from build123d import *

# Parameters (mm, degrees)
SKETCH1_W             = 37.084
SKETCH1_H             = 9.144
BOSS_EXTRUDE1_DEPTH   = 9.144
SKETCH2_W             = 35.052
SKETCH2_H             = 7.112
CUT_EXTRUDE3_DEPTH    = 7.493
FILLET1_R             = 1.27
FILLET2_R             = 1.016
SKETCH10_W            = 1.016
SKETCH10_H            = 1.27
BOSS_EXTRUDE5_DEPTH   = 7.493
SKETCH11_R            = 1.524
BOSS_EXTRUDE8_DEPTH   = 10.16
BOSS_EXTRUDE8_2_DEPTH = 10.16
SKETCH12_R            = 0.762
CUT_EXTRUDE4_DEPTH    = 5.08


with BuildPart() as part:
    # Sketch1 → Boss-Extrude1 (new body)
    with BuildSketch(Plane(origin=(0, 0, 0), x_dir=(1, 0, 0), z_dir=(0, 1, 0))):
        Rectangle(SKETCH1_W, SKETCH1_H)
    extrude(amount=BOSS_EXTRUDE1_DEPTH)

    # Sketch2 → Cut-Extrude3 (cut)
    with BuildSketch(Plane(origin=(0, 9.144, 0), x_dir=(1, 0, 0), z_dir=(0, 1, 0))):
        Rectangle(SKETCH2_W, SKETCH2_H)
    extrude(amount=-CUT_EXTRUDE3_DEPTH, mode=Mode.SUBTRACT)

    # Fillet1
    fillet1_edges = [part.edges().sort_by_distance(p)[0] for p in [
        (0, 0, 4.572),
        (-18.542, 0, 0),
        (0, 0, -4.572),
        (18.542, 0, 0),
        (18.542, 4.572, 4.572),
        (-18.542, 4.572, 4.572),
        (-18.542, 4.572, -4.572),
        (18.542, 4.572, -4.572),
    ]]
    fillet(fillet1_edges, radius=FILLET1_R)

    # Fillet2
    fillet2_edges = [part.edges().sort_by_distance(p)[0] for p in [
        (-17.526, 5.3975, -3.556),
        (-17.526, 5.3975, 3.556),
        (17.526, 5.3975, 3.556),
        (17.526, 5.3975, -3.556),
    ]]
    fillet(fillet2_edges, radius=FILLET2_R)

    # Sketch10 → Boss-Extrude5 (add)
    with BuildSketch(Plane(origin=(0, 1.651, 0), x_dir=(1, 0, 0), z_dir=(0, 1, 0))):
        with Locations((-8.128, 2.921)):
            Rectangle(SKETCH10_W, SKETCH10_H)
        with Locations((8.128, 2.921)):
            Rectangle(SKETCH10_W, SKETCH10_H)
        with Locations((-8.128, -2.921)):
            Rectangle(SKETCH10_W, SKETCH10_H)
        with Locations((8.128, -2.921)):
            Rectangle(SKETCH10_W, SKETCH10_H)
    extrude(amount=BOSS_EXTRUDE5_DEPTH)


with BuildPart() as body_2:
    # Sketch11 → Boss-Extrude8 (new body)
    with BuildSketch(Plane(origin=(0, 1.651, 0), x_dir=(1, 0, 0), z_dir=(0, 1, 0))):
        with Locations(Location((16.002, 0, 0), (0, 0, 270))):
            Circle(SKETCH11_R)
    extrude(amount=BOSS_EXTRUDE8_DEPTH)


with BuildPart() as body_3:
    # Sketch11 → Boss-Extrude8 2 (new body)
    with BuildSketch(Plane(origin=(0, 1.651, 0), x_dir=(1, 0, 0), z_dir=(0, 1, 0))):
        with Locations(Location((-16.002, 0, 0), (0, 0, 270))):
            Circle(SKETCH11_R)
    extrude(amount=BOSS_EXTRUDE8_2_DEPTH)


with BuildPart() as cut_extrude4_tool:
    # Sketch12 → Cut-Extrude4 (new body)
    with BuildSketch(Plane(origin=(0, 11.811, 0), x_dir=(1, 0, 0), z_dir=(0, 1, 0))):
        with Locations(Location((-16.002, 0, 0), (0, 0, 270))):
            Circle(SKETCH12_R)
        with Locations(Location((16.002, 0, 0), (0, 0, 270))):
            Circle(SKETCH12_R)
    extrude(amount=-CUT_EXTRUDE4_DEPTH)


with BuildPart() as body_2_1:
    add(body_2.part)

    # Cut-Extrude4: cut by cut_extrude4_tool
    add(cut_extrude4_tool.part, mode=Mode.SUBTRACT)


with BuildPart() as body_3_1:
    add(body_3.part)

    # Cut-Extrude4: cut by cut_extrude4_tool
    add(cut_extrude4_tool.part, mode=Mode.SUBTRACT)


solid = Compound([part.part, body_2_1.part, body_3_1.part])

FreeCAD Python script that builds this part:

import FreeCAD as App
import Part
import Sketcher
from FreeCAD import Vector
Q = App.Units.Quantity


def edges_at(feature, points):
    """Names of the edges that pass closest to the given points."""
    edges = feature.Shape.Edges
    near = lambda p: min(range(len(edges)), key=lambda i: edges[i].distToShape(Part.Vertex(*p))[0])
    return sorted({f"Edge{near(p) + 1}" for p in points})

doc = App.newDocument("Part")
params = doc.addObject("Spreadsheet::Sheet", "Params")
for row, (alias, value) in enumerate([
    ("sketch1_width", "1.46 in"),
    ("sketch1_height", "0.36 in"),
    ("pad1_length", "0.36 in"),
    ("sketch2_width", "1.38 in"),
    ("sketch2_height", "0.28 in"),
    ("pocket1_length", "0.295 in"),
    ("fillet_radius", "0.05 in"),
    ("fillet2_radius", "0.04 in"),
    ("sketch3_width", "0.04 in"),
    ("sketch3_height", "0.05 in"),
    ("pad2_length", "0.295 in"),
    ("sketch4_diameter", "0.12 in"),
    ("pad3_length", "0.4 in"),
    ("sketch5_diameter", "0.12 in"),
    ("pad4_length", "0.4 in"),
    ("sketch6_diameter", "0.06 in"),
    ("pad5_length", "0.2 in"),
], start=1):
    params.set(f"A{row}", alias)
    params.set(f"B{row}", "=" + value)
    params.setAlias(f"B{row}", alias)

body = doc.addObject("PartDesign::Body", "Body")

sketch1 = body.newObject("Sketcher::SketchObject", "Sketch")
sketch1.AttachmentSupport = (doc.getObject("XZ_Plane"), [""])
sketch1.MapMode = "FlatFace"
sketch1.addGeometry(Part.LineSegment(Vector(-19, -5, 0), Vector(-19, 5, 0)), False)
sketch1.addGeometry(Part.LineSegment(Vector(-19, 5, 0), Vector(19, 5, 0)), False)
sketch1.addGeometry(Part.LineSegment(Vector(19, 5, 0), Vector(19, -5, 0)), False)
sketch1.addGeometry(Part.LineSegment(Vector(19, -5, 0), Vector(-19, -5, 0)), False)
sketch1.addConstraint(Sketcher.Constraint("Coincident", 0, 2, 1, 1))
sketch1.addConstraint(Sketcher.Constraint("Coincident", 1, 2, 2, 1))
sketch1.addConstraint(Sketcher.Constraint("Coincident", 2, 2, 3, 1))
sketch1.addConstraint(Sketcher.Constraint("Coincident", 3, 2, 0, 1))
sketch1.addConstraint(Sketcher.Constraint("Vertical", 0))
sketch1.addConstraint(Sketcher.Constraint("Horizontal", 1))
sketch1.addConstraint(Sketcher.Constraint("Vertical", 2))
sketch1.addConstraint(Sketcher.Constraint("Horizontal", 3))
sketch1.addConstraint(Sketcher.Constraint("Symmetric", 0, 2, 2, 2, -1, 1))
sketch1.addConstraint(Sketcher.Constraint("DistanceX", 1, 1, 1, 2, Q("1.46 in")))
sketch1.addConstraint(Sketcher.Constraint("DistanceY", 0, 1, 0, 2, Q("0.36 in")))
sketch1.setExpression("Constraints[9]", "Params.sketch1_width")
sketch1.setExpression("Constraints[10]", "Params.sketch1_height")
pad1 = body.newObject("PartDesign::Pad", "Pad")
pad1.Profile = sketch1
pad1.setExpression("Length", "Params.pad1_length")
pad1.Reversed = True

sketch2 = body.newObject("Sketcher::SketchObject", "Sketch001")
sketch2.AttachmentSupport = (doc.getObject("XZ_Plane"), [""])
sketch2.MapMode = "FlatFace"
sketch2.AttachmentOffset = App.Placement(Vector(0, 0, -0.36 * 25.4), App.Rotation())
sketch2.addGeometry(Part.LineSegment(Vector(-18, -4, 0), Vector(-18, 4, 0)), False)
sketch2.addGeometry(Part.LineSegment(Vector(-18, 4, 0), Vector(18, 4, 0)), False)
sketch2.addGeometry(Part.LineSegment(Vector(18, 4, 0), Vector(18, -4, 0)), False)
sketch2.addGeometry(Part.LineSegment(Vector(18, -4, 0), Vector(-18, -4, 0)), False)
sketch2.addConstraint(Sketcher.Constraint("Coincident", 0, 2, 1, 1))
sketch2.addConstraint(Sketcher.Constraint("Coincident", 1, 2, 2, 1))
sketch2.addConstraint(Sketcher.Constraint("Coincident", 2, 2, 3, 1))
sketch2.addConstraint(Sketcher.Constraint("Coincident", 3, 2, 0, 1))
sketch2.addConstraint(Sketcher.Constraint("Vertical", 0))
sketch2.addConstraint(Sketcher.Constraint("Horizontal", 1))
sketch2.addConstraint(Sketcher.Constraint("Vertical", 2))
sketch2.addConstraint(Sketcher.Constraint("Horizontal", 3))
sketch2.addConstraint(Sketcher.Constraint("Symmetric", 0, 2, 2, 2, -1, 1))
sketch2.addConstraint(Sketcher.Constraint("DistanceX", 1, 1, 1, 2, Q("1.38 in")))
sketch2.addConstraint(Sketcher.Constraint("DistanceY", 0, 1, 0, 2, Q("0.28 in")))
sketch2.setExpression("Constraints[9]", "Params.sketch2_width")
sketch2.setExpression("Constraints[10]", "Params.sketch2_height")
pocket1 = body.newObject("PartDesign::Pocket", "Pocket")
pocket1.Profile = sketch2
pocket1.setExpression("Length", "Params.pocket1_length")
pocket1.Reversed = True
doc.recompute()

fillet = body.newObject("PartDesign::Fillet", "Fillet")
fillet.Base = (pocket1, edges_at(pocket1, [
    (0, 0, 4.572),
    (-18.542, 0, 0),
    (0, 0, -4.572),
    (18.542, 0, 0),
    (18.542, 4.572, 4.572),
    (-18.542, 4.572, 4.572),
    (-18.542, 4.572, -4.572),
    (18.542, 4.572, -4.572),
]))
fillet.setExpression("Radius", "Params.fillet_radius")
doc.recompute()

fillet2 = body.newObject("PartDesign::Fillet", "Fillet001")
fillet2.Base = (fillet, edges_at(fillet, [
    (-17.526, 5.397, -3.556),
    (-17.526, 5.397, 3.556),
    (17.526, 5.397, 3.556),
    (17.526, 5.397, -3.556),
]))
fillet2.setExpression("Radius", "Params.fillet2_radius")

sketch3 = body.newObject("Sketcher::SketchObject", "Sketch002")
sketch3.AttachmentSupport = (doc.getObject("XZ_Plane"), [""])
sketch3.MapMode = "FlatFace"
sketch3.AttachmentOffset = App.Placement(Vector(0, 0, -0.065 * 25.4), App.Rotation())
sketch3.addGeometry(Part.LineSegment(Vector(-8.6, -3.6, 0), Vector(-8.6, -2.3, 0)), False)
sketch3.addGeometry(Part.LineSegment(Vector(-8.6, -2.3, 0), Vector(-7.6, -2.3, 0)), False)
sketch3.addGeometry(Part.LineSegment(Vector(-7.6, -2.3, 0), Vector(-7.6, -3.6, 0)), False)
sketch3.addGeometry(Part.LineSegment(Vector(-7.6, -3.6, 0), Vector(-8.6, -3.6, 0)), False)
sketch3.addGeometry(Part.LineSegment(Vector(7.6, -3.6, 0), Vector(7.6, -2.3, 0)), False)
sketch3.addGeometry(Part.LineSegment(Vector(7.6, -2.3, 0), Vector(8.6, -2.3, 0)), False)
sketch3.addGeometry(Part.LineSegment(Vector(8.6, -2.3, 0), Vector(8.6, -3.6, 0)), False)
sketch3.addGeometry(Part.LineSegment(Vector(8.6, -3.6, 0), Vector(7.6, -3.6, 0)), False)
sketch3.addGeometry(Part.LineSegment(Vector(-8.6, 2.3, 0), Vector(-8.6, 3.6, 0)), False)
sketch3.addGeometry(Part.LineSegment(Vector(-8.6, 3.6, 0), Vector(-7.6, 3.6, 0)), False)
sketch3.addGeometry(Part.LineSegment(Vector(-7.6, 3.6, 0), Vector(-7.6, 2.3, 0)), False)
sketch3.addGeometry(Part.LineSegment(Vector(-7.6, 2.3, 0), Vector(-8.6, 2.3, 0)), False)
sketch3.addGeometry(Part.LineSegment(Vector(7.6, 2.3, 0), Vector(7.6, 3.6, 0)), False)
sketch3.addGeometry(Part.LineSegment(Vector(7.6, 3.6, 0), Vector(8.6, 3.6, 0)), False)
sketch3.addGeometry(Part.LineSegment(Vector(8.6, 3.6, 0), Vector(8.6, 2.3, 0)), False)
sketch3.addGeometry(Part.LineSegment(Vector(8.6, 2.3, 0), Vector(7.6, 2.3, 0)), False)
sketch3.addConstraint(Sketcher.Constraint("Coincident", 0, 2, 1, 1))
sketch3.addConstraint(Sketcher.Constraint("Coincident", 1, 2, 2, 1))
sketch3.addConstraint(Sketcher.Constraint("Coincident", 2, 2, 3, 1))
sketch3.addConstraint(Sketcher.Constraint("Coincident", 3, 2, 0, 1))
sketch3.addConstraint(Sketcher.Constraint("Coincident", 4, 2, 5, 1))
sketch3.addConstraint(Sketcher.Constraint("Coincident", 5, 2, 6, 1))
sketch3.addConstraint(Sketcher.Constraint("Coincident", 6, 2, 7, 1))
sketch3.addConstraint(Sketcher.Constraint("Coincident", 7, 2, 4, 1))
sketch3.addConstraint(Sketcher.Constraint("Coincident", 8, 2, 9, 1))
sketch3.addConstraint(Sketcher.Constraint("Coincident", 9, 2, 10, 1))
sketch3.addConstraint(Sketcher.Constraint("Coincident", 10, 2, 11, 1))
sketch3.addConstraint(Sketcher.Constraint("Coincident", 11, 2, 8, 1))
sketch3.addConstraint(Sketcher.Constraint("Coincident", 12, 2, 13, 1))
sketch3.addConstraint(Sketcher.Constraint("Coincident", 13, 2, 14, 1))
sketch3.addConstraint(Sketcher.Constraint("Coincident", 14, 2, 15, 1))
sketch3.addConstraint(Sketcher.Constraint("Coincident", 15, 2, 12, 1))
sketch3.addConstraint(Sketcher.Constraint("Vertical", 0))
sketch3.addConstraint(Sketcher.Constraint("Horizontal", 1))
sketch3.addConstraint(Sketcher.Constraint("Vertical", 2))
sketch3.addConstraint(Sketcher.Constraint("Horizontal", 3))
sketch3.addConstraint(Sketcher.Constraint("Vertical", 4))
sketch3.addConstraint(Sketcher.Constraint("Horizontal", 5))
sketch3.addConstraint(Sketcher.Constraint("Vertical", 6))
sketch3.addConstraint(Sketcher.Constraint("Horizontal", 7))
sketch3.addConstraint(Sketcher.Constraint("Vertical", 8))
sketch3.addConstraint(Sketcher.Constraint("Horizontal", 9))
sketch3.addConstraint(Sketcher.Constraint("Vertical", 10))
sketch3.addConstraint(Sketcher.Constraint("Horizontal", 11))
sketch3.addConstraint(Sketcher.Constraint("Vertical", 12))
sketch3.addConstraint(Sketcher.Constraint("Horizontal", 13))
sketch3.addConstraint(Sketcher.Constraint("Vertical", 14))
sketch3.addConstraint(Sketcher.Constraint("Horizontal", 15))
sketch3.addConstraint(Sketcher.Constraint("Symmetric", 6, 2, 8, 2, -1, 1))
sketch3.addConstraint(Sketcher.Constraint("Symmetric", 4, 2, 10, 2, -1, 1))
sketch3.addConstraint(Sketcher.Constraint("Symmetric", 2, 2, 12, 2, -1, 1))
sketch3.addConstraint(Sketcher.Constraint("Symmetric", 0, 2, 14, 2, -1, 1))
sketch3.addConstraint(Sketcher.Constraint("Symmetric", 1, 2, 4, 2, -2))
sketch3.addConstraint(Sketcher.Constraint("Symmetric", 3, 2, 6, 2, -2))
sketch3.addConstraint(Sketcher.Constraint("DistanceX", 1, 1, 1, 2, Q("0.04 in")))
sketch3.addConstraint(Sketcher.Constraint("DistanceY", 0, 1, 0, 2, Q("0.05 in")))
sketch3.addConstraint(Sketcher.Constraint("DistanceX", 1, 2, -1, 1, Q("0.3 in")))
sketch3.addConstraint(Sketcher.Constraint("DistanceY", 0, 2, -1, 1, Q("0.09 in")))
sketch3.setExpression("Constraints[38]", "Params.sketch3_width")
sketch3.setExpression("Constraints[39]", "Params.sketch3_height")
pad2 = body.newObject("PartDesign::Pad", "Pad001")
pad2.Profile = sketch3
pad2.setExpression("Length", "Params.pad2_length")
pad2.Reversed = True
body2 = doc.addObject("PartDesign::Body", "Body001")

sketch4 = body2.newObject("Sketcher::SketchObject", "Sketch003")
sketch4.AttachmentSupport = (doc.getObject("XZ_Plane001"), [""])
sketch4.MapMode = "FlatFace"
sketch4.AttachmentOffset = App.Placement(Vector(0, 0, -0.065 * 25.4), App.Rotation())
sketch4.addGeometry(Part.Circle(Vector(16, 0, 0), Vector(0, 0, 1), 1.5), False)
sketch4.addConstraint(Sketcher.Constraint("PointOnObject", 0, 3, -1))
sketch4.addConstraint(Sketcher.Constraint("Diameter", 0, Q("0.12 in")))
sketch4.addConstraint(Sketcher.Constraint("DistanceX", -1, 1, 0, 3, Q("0.63 in")))
sketch4.setExpression("Constraints[1]", "Params.sketch4_diameter")
pad3 = body2.newObject("PartDesign::Pad", "Pad002")
pad3.Profile = sketch4
pad3.setExpression("Length", "Params.pad3_length")
pad3.Reversed = True
body3 = doc.addObject("PartDesign::Body", "Body002")

sketch5 = body3.newObject("Sketcher::SketchObject", "Sketch004")
sketch5.AttachmentSupport = (doc.getObject("XZ_Plane002"), [""])
sketch5.MapMode = "FlatFace"
sketch5.AttachmentOffset = App.Placement(Vector(0, 0, -0.065 * 25.4), App.Rotation())
sketch5.addGeometry(Part.Circle(Vector(-16, 0, 0), Vector(0, 0, 1), 1.5), False)
sketch5.addConstraint(Sketcher.Constraint("PointOnObject", 0, 3, -1))
sketch5.addConstraint(Sketcher.Constraint("Diameter", 0, Q("0.12 in")))
sketch5.addConstraint(Sketcher.Constraint("DistanceX", 0, 3, -1, 1, Q("0.63 in")))
sketch5.setExpression("Constraints[1]", "Params.sketch5_diameter")
pad4 = body3.newObject("PartDesign::Pad", "Pad003")
pad4.Profile = sketch5
pad4.setExpression("Length", "Params.pad4_length")
pad4.Reversed = True
body4 = doc.addObject("PartDesign::Body", "Body003")
body4.AllowCompound = True

sketch6 = body4.newObject("Sketcher::SketchObject", "Sketch005")
sketch6.AttachmentSupport = (doc.getObject("XZ_Plane003"), [""])
sketch6.MapMode = "FlatFace"
sketch6.AttachmentOffset = App.Placement(Vector(0, 0, -0.465 * 25.4), App.Rotation())
sketch6.addGeometry(Part.Circle(Vector(-16, 0, 0), Vector(0, 0, 1), 0.8), False)
sketch6.addGeometry(Part.Circle(Vector(16, 0, 0), Vector(0, 0, 1), 0.8), False)
sketch6.addConstraint(Sketcher.Constraint("Equal", 0, 1))
sketch6.addConstraint(Sketcher.Constraint("Symmetric", 0, 3, 1, 3, -1, 1))
sketch6.addConstraint(Sketcher.Constraint("PointOnObject", 0, 3, -1))
sketch6.addConstraint(Sketcher.Constraint("Diameter", 0, Q("0.06 in")))
sketch6.addConstraint(Sketcher.Constraint("DistanceX", 0, 3, -1, 1, Q("0.63 in")))
sketch6.setExpression("Constraints[3]", "Params.sketch6_diameter")
pad5 = body4.newObject("PartDesign::Pad", "Pad004")
pad5.Profile = sketch6
pad5.setExpression("Length", "Params.pad5_length")
doc.recompute()

body5 = doc.addObject("PartDesign::Body", "Body004")
body5.BaseFeature = body4
boolean = body2.newObject("PartDesign::Boolean", "Boolean")
boolean.Type = "Cut"
boolean.addObjects([body5])
doc.recompute()

boolean2 = body3.newObject("PartDesign::Boolean", "Boolean001")
boolean2.Type = "Cut"
boolean2.addObjects([body4])

doc.recompute()
